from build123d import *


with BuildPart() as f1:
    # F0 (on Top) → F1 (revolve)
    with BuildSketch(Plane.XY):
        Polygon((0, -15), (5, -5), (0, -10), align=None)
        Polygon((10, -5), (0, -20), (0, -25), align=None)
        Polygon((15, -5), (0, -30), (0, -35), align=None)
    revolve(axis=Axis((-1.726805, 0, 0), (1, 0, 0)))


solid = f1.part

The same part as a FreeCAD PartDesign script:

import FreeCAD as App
import Part
import Sketcher
Q = App.Units.Quantity

doc = App.newDocument("Part")
body = doc.addObject("PartDesign::Body", "Body")
body.AllowCompound = True

# Sketch on XY plane
sketch1 = doc.addObject("Sketcher::SketchObject", "Sketch")
body.addObject(sketch1)
sketch1.AttachmentSupport = (doc.XY_Plane, [""])
sketch1.MapMode = "FlatFace"
sketch1.addGeometry([
    Part.LineSegment(App.Vector(0, -15, 0), App.Vector(5, -5, 0)),  # 0
    Part.LineSegment(App.Vector(5, -5, 0), App.Vector(0, -10, 0)),  # 1
    Part.LineSegment(App.Vector(0, -10, 0), App.Vector(0, -15, 0)),  # 2
    Part.LineSegment(App.Vector(10, -5, 0), App.Vector(0, -20, 0)),  # 3
    Part.LineSegment(App.Vector(0, -20, 0), App.Vector(0, -25, 0)),  # 4
    Part.LineSegment(App.Vector(0, -25, 0), App.Vector(10, -5, 0)),  # 5
    Part.LineSegment(App.Vector(15, -5, 0), App.Vector(0, -30, 0)),  # 6
    Part.LineSegment(App.Vector(0, -30, 0), App.Vector(0, -35, 0)),  # 7
    Part.LineSegment(App.Vector(0, -35, 0), App.Vector(15, -5, 0)),  # 8
], False)
sketch1.addConstraint([
    Sketcher.Constraint("Coincident", 0, 2, 1, 1),
    Sketcher.Constraint("Coincident", 1, 2, 2, 1),
    Sketcher.Constraint("Coincident", 2, 2, 0, 1),
    Sketcher.Constraint("Coincident", 3, 2, 4, 1),
    Sketcher.Constraint("Coincident", 4, 2, 5, 1),
    Sketcher.Constraint("Coincident", 5, 2, 3, 1),
    Sketcher.Constraint("Coincident", 6, 2, 7, 1),
    Sketcher.Constraint("Coincident", 7, 2, 8, 1),
    Sketcher.Constraint("Coincident", 8, 2, 6, 1),
    Sketcher.Constraint("Vertical", 2),
    Sketcher.Constraint("Vertical", 4),
    Sketcher.Constraint("Vertical", 7),
    Sketcher.Constraint("PointOnObject", 1, 2, -2),
    Sketcher.Constraint("PointOnObject", 3, 2, -2),
    Sketcher.Constraint("PointOnObject", 6, 2, -2),
    Sketcher.Constraint("Parallel", 0, 5),
    Sketcher.Constraint("Parallel", 5, 8),
    Sketcher.Constraint("Horizontal", 0, 2, 5, 2),
    Sketcher.Constraint("Horizontal", 5, 2, 8, 2),
    Sketcher.Constraint("Equal", 2, 4),
    Sketcher.Constraint("Equal", 4, 7),
    Sketcher.Constraint("DistanceY", 2, 2, 2, 1, 5.0),
    Sketcher.Constraint("Angle", 1, Q("-135 deg")),
    Sketcher.Constraint("DistanceX", -1, 1, 0, 2, 5.0),
    Sketcher.Constraint("DistanceY", 0, 2, -1, 1, 5.0),
    Sketcher.Constraint("DistanceY", 3, 2, -1, 1, 20.0),
    Sketcher.Constraint("DistanceY", 6, 2, -1, 1, 30.0),
])
revolution = doc.addObject("PartDesign::Revolution", "Revolution")
body.addObject(revolution)
revolution.Profile = sketch1
revolution.ReferenceAxis = (sketch1, ["H_Axis"])
revolution.Angle = 360

doc.recompute()
